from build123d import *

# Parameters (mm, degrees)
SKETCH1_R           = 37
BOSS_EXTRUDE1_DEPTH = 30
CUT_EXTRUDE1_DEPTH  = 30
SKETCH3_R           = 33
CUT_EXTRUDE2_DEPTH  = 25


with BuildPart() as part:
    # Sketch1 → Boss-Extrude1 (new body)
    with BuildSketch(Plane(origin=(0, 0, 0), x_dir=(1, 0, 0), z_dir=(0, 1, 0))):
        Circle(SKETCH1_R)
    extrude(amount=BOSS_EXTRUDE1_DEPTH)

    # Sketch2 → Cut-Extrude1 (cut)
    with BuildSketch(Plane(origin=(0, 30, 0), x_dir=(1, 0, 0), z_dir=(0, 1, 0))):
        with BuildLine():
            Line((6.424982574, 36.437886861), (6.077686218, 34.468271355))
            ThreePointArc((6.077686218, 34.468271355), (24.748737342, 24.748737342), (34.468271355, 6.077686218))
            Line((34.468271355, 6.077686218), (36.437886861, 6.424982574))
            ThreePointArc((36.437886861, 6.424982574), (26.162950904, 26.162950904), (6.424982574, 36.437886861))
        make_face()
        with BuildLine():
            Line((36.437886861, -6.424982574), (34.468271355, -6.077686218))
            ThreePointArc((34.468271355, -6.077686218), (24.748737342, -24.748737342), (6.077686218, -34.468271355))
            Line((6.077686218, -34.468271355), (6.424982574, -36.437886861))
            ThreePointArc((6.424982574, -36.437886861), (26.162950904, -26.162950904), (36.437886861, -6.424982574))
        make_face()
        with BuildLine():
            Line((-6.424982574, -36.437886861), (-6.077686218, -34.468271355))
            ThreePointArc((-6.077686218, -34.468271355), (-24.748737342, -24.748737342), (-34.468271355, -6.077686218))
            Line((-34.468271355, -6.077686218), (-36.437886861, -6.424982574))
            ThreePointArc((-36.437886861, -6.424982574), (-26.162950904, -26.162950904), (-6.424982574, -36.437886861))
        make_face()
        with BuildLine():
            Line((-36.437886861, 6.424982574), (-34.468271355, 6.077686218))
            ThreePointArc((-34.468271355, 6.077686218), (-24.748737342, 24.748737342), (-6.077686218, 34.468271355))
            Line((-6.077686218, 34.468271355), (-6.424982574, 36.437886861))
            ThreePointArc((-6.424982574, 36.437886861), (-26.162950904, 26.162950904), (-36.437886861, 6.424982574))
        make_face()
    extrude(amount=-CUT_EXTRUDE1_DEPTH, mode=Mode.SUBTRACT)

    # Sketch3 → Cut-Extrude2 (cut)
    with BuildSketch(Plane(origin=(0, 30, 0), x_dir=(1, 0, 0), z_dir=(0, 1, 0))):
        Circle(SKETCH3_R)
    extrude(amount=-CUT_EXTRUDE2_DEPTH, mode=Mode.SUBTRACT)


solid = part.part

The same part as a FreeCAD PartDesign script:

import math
import FreeCAD as App
import Part
import Sketcher
from FreeCAD import Vector
Q = App.Units.Quantity

doc = App.newDocument("Part")
body = doc.addObject("PartDesign::Body", "Body")

sketch1 = body.newObject("Sketcher::SketchObject", "Sketch")
sketch1.AttachmentSupport = (doc.getObject("XZ_Plane"), [""])
sketch1.MapMode = "FlatFace"
sketch1.addGeometry(Part.Circle(Vector(0, 0, 0), Vector(0, 0, 1), 37), False)
sketch1.addConstraint(Sketcher.Constraint("Coincident", 0, 3, -1, 1))
sketch1.addConstraint(Sketcher.Constraint("Diameter", 0, 74.0))
pad1 = body.newObject("PartDesign::Pad", "Pad")
pad1.Profile = sketch1
pad1.Length = 30
pad1.Reversed = True

sketch2 = body.newObject("Sketcher::SketchObject", "Sketch001")
sketch2.AttachmentSupport = (doc.getObject("XZ_Plane"), [""])
sketch2.MapMode = "FlatFace"
sketch2.AttachmentOffset = App.Placement(Vector(0, 0, -30), App.Rotation())
sketch2.addGeometry(Part.LineSegment(Vector(6.4, -36.4, 0), Vector(6.1, -34.5, 0)), False)
sketch2.addGeometry(Part.ArcOfCircle(Part.Circle(Vector(0, 0, 0), Vector(0, 0, 1), 35), math.radians(-80), math.radians(-10)), False)
sketch2.addGeometry(Part.LineSegment(Vector(34.5, -6.1, 0), Vector(36.4, -6.4, 0)), False)
sketch2.addGeometry(Part.ArcOfCircle(Part.Circle(Vector(0, 0, 0), Vector(0, 0, 1), 37), math.radians(-80), math.radians(-10)), False)
sketch2.addGeometry(Part.LineSegment(Vector(36.4, 6.4, 0), Vector(34.5, 6.1, 0)), False)
sketch2.addGeometry(Part.ArcOfCircle(Part.Circle(Vector(0, 0, 0), Vector(0, 0, 1), 35), math.radians(10), math.radians(80)), False)
sketch2.addGeometry(Part.LineSegment(Vector(6.1, 34.5, 0), Vector(6.4, 36.4, 0)), False)
sketch2.addGeometry(Part.ArcOfCircle(Part.Circle(Vector(0, 0, 0), Vector(0, 0, 1), 37), math.radians(10), math.radians(80)), False)
sketch2.addGeometry(Part.LineSegment(Vector(-6.4, 36.4, 0), Vector(-6.1, 34.5, 0)), False)
sketch2.addGeometry(Part.ArcOfCircle(Part.Circle(Vector(0, 0, 0), Vector(0, 0, 1), 35), math.radians(100), math.radians(170)), False)
sketch2.addGeometry(Part.LineSegment(Vector(-34.5, 6.1, 0), Vector(-36.4, 6.4, 0)), False)
sketch2.addGeometry(Part.ArcOfCircle(Part.Circle(Vector(0, 0, 0), Vector(0, 0, 1), 37), math.radians(100), math.radians(170)), False)
sketch2.addGeometry(Part.LineSegment(Vector(-36.4, -6.4, 0), Vector(-34.5, -6.1, 0)), False)
sketch2.addGeometry(Part.ArcOfCircle(Part.Circle(Vector(0, 0, 0), Vector(0, 0, 1), 35), math.radians(-170), math.radians(-100)), False)
sketch2.addGeometry(Part.LineSegment(Vector(-6.1, -34.5, 0), Vector(-6.4, -36.4, 0)), False)
sketch2.addGeometry(Part.ArcOfCircle(Part.Circle(Vector(0, 0, 0), Vector(0, 0, 1), 37), math.radians(-170), math.radians(-100)), False)
sketch2.addConstraint(Sketcher.Constraint("Coincident", 0, 2, 1, 1))
sketch2.addConstraint(Sketcher.Constraint("Coincident", 1, 2, 2, 1))
sketch2.addConstraint(Sketcher.Constraint("Coincident", 2, 2, 3, 2))
sketch2.addConstraint(Sketcher.Constraint("Coincident", 3, 1, 0, 1))
sketch2.addConstraint(Sketcher.Constraint("Coincident", 4, 2, 5, 1))
sketch2.addConstraint(Sketcher.Constraint("Coincident", 5, 2, 6, 1))
sketch2.addConstraint(Sketcher.Constraint("Coincident", 6, 2, 7, 2))
sketch2.addConstraint(Sketcher.Constraint("Coincident", 7, 1, 4, 1))
sketch2.addConstraint(Sketcher.Constraint("Coincident", 8, 2, 9, 1))
sketch2.addConstraint(Sketcher.Constraint("Coincident", 9, 2, 10, 1))
sketch2.addConstraint(Sketcher.Constraint("Coincident", 10, 2, 11, 2))
sketch2.addConstraint(Sketcher.Constraint("Coincident", 11, 1, 8, 1))
sketch2.addConstraint(Sketcher.Constraint("Coincident", 12, 2, 13, 1))
sketch2.addConstraint(Sketcher.Constraint("Coincident", 13, 2, 14, 1))
sketch2.addConstraint(Sketcher.Constraint("Coincident", 14, 2, 15, 2))
sketch2.addConstraint(Sketcher.Constraint("Coincident", 15, 1, 12, 1))
sketch2.addConstraint(Sketcher.Constraint("Coincident", 1, 3, -1, 1))
sketch2.addConstraint(Sketcher.Constraint("Coincident", 3, 3, -1, 1))
sketch2.addConstraint(Sketcher.Constraint("Coincident", 5, 3, -1, 1))
sketch2.addConstraint(Sketcher.Constraint("Coincident", 7, 3, -1, 1))
sketch2.addConstraint(Sketcher.Constraint("Coincident", 9, 3, -1, 1))
sketch2.addConstraint(Sketcher.Constraint("Coincident", 11, 3, -1, 1))
sketch2.addConstraint(Sketcher.Constraint("Coincident", 13, 3, -1, 1))
sketch2.addConstraint(Sketcher.Constraint("Coincident", 15, 3, -1, 1))
sketch2.addConstraint(Sketcher.Constraint("Equal", 1, 5))
sketch2.addConstraint(Sketcher.Constraint("Equal", 3, 7))
sketch2.addConstraint(Sketcher.Constraint("Equal", 5, 9))
sketch2.addConstraint(Sketcher.Constraint("Equal", 7, 11))
sketch2.addConstraint(Sketcher.Constraint("Equal", 9, 13))
sketch2.addConstraint(Sketcher.Constraint("Equal", 11, 15))
sketch2.addConstraint(Sketcher.Constraint("Perpendicular", 0, 4))
sketch2.addConstraint(Sketcher.Constraint("Perpendicular", 2, 6))
sketch2.addConstraint(Sketcher.Constraint("Perpendicular", 4, 8))
sketch2.addConstraint(Sketcher.Constraint("Perpendicular", 6, 10))
sketch2.addConstraint(Sketcher.Constraint("Perpendicular", 8, 12))
sketch2.addConstraint(Sketcher.Constraint("Perpendicular", 10, 14))
sketch2.addConstraint(Sketcher.Constraint("Horizontal", 5, 2, 8, 2))
sketch2.addConstraint(Sketcher.Constraint("Horizontal", 4, 2, 9, 2))
sketch2.addConstraint(Sketcher.Constraint("Horizontal", 7, 1, 10, 2))
sketch2.addConstraint(Sketcher.Constraint("Horizontal", 1, 2, 12, 2))
sketch2.addConstraint(Sketcher.Constraint("Horizontal", 0, 2, 13, 2))
sketch2.addConstraint(Sketcher.Constraint("Vertical", 1, 2, 4, 2))
sketch2.addConstraint(Sketcher.Constraint("Vertical", 0, 2, 5, 2))
sketch2.addConstraint(Sketcher.Constraint("Radius", 1, 35.0))
sketch2.addConstraint(Sketcher.Constraint("Radius", 3, 37.0))
sketch2.addConstraint(Sketcher.Constraint("Angle", 0, Q("100 deg")))
sketch2.addConstraint(Sketcher.Constraint("DistanceY", 0, 2, -1, 1, 34.468271))
sketch2.addConstraint(Sketcher.Constraint("DistanceX", -1, 1, 1, 2, 34.468271))
pocket1 = body.newObject("PartDesign::Pocket", "Pocket")
pocket1.Profile = sketch2
pocket1.Length = 30
pocket1.Reversed = True

sketch3 = body.newObject("Sketcher::SketchObject", "Sketch002")
sketch3.AttachmentSupport = (doc.getObject("XZ_Plane"), [""])
sketch3.MapMode = "FlatFace"
sketch3.AttachmentOffset = App.Placement(Vector(0, 0, -30), App.Rotation())
sketch3.addGeometry(Part.Circle(Vector(0, 0, 0), Vector(0, 0, 1), 33), False)
sketch3.addConstraint(Sketcher.Constraint("Coincident", 0, 3, -1, 1))
sketch3.addConstraint(Sketcher.Constraint("Diameter", 0, 66.0))
pocket2 = body.newObject("PartDesign::Pocket", "Pocket001")
pocket2.Profile = sketch3
pocket2.Length = 25
pocket2.Reversed = True

doc.recompute()
